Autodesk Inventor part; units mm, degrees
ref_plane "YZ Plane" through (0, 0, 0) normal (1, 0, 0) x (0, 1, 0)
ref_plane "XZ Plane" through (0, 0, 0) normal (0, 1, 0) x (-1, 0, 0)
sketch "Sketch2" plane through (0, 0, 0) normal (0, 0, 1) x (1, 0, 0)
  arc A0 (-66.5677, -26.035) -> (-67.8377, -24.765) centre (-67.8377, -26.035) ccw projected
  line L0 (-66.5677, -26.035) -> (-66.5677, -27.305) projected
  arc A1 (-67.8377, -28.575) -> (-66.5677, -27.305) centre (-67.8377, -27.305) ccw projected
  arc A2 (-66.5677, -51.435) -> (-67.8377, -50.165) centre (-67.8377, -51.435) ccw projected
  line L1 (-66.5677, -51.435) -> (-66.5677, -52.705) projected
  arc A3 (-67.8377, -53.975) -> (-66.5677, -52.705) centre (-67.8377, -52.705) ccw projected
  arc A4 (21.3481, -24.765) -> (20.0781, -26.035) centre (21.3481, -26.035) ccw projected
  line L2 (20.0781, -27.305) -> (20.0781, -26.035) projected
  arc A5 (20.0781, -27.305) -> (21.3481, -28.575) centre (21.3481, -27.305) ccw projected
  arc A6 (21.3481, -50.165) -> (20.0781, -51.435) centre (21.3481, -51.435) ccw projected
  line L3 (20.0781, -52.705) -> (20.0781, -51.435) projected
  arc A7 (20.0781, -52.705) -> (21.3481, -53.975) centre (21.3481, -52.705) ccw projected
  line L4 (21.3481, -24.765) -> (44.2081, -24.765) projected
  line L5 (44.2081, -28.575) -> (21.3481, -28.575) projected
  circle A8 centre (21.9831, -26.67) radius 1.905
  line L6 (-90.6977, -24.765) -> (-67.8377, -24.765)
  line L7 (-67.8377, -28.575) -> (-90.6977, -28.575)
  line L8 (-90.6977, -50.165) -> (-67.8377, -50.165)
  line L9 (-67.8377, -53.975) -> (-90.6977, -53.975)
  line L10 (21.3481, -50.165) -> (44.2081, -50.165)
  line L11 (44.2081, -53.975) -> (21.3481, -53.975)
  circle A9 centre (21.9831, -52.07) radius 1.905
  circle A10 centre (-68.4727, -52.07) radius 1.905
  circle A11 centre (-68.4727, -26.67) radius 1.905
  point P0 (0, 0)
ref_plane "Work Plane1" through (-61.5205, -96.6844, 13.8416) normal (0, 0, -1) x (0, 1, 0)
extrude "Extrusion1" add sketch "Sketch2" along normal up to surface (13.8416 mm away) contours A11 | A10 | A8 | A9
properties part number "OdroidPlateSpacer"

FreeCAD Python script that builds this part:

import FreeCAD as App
import Part
import Sketcher
Q = App.Units.Quantity

doc = App.newDocument("Part")
body = doc.addObject("PartDesign::Body", "Body")
body.AllowCompound = True

sketch1 = body.newObject("Sketcher::SketchObject", "Sketch")
sketch1.AttachmentSupport = (doc.getObject("XY_Plane"), [""])
sketch1.MapMode = "FlatFace"
sketch1.addGeometry([
    Part.Circle(App.Vector(-68.5, -26.7, 0), App.Vector(0, 0, 1), 1.9),
    Part.Circle(App.Vector(-68.5, -52.1, 0), App.Vector(0, 0, 1), 1.9),
    Part.Circle(App.Vector(22, -26.7, 0), App.Vector(0, 0, 1), 1.9),
    Part.Circle(App.Vector(22, -52.1, 0), App.Vector(0, 0, 1), 1.9),
], False)
sketch1.addConstraint([
    Sketcher.Constraint("Equal", 0, 1),
    Sketcher.Constraint("Equal", 1, 2),
    Sketcher.Constraint("Equal", 2, 3),
    Sketcher.Constraint("Horizontal", 0, 3, 2, 3),
    Sketcher.Constraint("Horizontal", 1, 3, 3, 3),
    Sketcher.Constraint("Vertical", 0, 3, 1, 3),
    Sketcher.Constraint("Vertical", 2, 3, 3, 3),
    Sketcher.Constraint("Diameter", 0, Q("0.15 in")),
    Sketcher.Constraint("DistanceY", 1, 3, 0, 3, Q("1 in")),
    Sketcher.Constraint("DistanceY", 0, 3, -1, 1, Q("1.05 in")),
    Sketcher.Constraint("DistanceX", 0, 3, -1, 1, Q("68.4727 mm")),
    Sketcher.Constraint("DistanceX", -1, 1, 2, 3, Q("21.983 mm")),
])
pad1 = body.newObject("PartDesign::Pad", "Pad")
pad1.Profile = sketch1
pad1.Length = 13.8416

doc.recompute()
